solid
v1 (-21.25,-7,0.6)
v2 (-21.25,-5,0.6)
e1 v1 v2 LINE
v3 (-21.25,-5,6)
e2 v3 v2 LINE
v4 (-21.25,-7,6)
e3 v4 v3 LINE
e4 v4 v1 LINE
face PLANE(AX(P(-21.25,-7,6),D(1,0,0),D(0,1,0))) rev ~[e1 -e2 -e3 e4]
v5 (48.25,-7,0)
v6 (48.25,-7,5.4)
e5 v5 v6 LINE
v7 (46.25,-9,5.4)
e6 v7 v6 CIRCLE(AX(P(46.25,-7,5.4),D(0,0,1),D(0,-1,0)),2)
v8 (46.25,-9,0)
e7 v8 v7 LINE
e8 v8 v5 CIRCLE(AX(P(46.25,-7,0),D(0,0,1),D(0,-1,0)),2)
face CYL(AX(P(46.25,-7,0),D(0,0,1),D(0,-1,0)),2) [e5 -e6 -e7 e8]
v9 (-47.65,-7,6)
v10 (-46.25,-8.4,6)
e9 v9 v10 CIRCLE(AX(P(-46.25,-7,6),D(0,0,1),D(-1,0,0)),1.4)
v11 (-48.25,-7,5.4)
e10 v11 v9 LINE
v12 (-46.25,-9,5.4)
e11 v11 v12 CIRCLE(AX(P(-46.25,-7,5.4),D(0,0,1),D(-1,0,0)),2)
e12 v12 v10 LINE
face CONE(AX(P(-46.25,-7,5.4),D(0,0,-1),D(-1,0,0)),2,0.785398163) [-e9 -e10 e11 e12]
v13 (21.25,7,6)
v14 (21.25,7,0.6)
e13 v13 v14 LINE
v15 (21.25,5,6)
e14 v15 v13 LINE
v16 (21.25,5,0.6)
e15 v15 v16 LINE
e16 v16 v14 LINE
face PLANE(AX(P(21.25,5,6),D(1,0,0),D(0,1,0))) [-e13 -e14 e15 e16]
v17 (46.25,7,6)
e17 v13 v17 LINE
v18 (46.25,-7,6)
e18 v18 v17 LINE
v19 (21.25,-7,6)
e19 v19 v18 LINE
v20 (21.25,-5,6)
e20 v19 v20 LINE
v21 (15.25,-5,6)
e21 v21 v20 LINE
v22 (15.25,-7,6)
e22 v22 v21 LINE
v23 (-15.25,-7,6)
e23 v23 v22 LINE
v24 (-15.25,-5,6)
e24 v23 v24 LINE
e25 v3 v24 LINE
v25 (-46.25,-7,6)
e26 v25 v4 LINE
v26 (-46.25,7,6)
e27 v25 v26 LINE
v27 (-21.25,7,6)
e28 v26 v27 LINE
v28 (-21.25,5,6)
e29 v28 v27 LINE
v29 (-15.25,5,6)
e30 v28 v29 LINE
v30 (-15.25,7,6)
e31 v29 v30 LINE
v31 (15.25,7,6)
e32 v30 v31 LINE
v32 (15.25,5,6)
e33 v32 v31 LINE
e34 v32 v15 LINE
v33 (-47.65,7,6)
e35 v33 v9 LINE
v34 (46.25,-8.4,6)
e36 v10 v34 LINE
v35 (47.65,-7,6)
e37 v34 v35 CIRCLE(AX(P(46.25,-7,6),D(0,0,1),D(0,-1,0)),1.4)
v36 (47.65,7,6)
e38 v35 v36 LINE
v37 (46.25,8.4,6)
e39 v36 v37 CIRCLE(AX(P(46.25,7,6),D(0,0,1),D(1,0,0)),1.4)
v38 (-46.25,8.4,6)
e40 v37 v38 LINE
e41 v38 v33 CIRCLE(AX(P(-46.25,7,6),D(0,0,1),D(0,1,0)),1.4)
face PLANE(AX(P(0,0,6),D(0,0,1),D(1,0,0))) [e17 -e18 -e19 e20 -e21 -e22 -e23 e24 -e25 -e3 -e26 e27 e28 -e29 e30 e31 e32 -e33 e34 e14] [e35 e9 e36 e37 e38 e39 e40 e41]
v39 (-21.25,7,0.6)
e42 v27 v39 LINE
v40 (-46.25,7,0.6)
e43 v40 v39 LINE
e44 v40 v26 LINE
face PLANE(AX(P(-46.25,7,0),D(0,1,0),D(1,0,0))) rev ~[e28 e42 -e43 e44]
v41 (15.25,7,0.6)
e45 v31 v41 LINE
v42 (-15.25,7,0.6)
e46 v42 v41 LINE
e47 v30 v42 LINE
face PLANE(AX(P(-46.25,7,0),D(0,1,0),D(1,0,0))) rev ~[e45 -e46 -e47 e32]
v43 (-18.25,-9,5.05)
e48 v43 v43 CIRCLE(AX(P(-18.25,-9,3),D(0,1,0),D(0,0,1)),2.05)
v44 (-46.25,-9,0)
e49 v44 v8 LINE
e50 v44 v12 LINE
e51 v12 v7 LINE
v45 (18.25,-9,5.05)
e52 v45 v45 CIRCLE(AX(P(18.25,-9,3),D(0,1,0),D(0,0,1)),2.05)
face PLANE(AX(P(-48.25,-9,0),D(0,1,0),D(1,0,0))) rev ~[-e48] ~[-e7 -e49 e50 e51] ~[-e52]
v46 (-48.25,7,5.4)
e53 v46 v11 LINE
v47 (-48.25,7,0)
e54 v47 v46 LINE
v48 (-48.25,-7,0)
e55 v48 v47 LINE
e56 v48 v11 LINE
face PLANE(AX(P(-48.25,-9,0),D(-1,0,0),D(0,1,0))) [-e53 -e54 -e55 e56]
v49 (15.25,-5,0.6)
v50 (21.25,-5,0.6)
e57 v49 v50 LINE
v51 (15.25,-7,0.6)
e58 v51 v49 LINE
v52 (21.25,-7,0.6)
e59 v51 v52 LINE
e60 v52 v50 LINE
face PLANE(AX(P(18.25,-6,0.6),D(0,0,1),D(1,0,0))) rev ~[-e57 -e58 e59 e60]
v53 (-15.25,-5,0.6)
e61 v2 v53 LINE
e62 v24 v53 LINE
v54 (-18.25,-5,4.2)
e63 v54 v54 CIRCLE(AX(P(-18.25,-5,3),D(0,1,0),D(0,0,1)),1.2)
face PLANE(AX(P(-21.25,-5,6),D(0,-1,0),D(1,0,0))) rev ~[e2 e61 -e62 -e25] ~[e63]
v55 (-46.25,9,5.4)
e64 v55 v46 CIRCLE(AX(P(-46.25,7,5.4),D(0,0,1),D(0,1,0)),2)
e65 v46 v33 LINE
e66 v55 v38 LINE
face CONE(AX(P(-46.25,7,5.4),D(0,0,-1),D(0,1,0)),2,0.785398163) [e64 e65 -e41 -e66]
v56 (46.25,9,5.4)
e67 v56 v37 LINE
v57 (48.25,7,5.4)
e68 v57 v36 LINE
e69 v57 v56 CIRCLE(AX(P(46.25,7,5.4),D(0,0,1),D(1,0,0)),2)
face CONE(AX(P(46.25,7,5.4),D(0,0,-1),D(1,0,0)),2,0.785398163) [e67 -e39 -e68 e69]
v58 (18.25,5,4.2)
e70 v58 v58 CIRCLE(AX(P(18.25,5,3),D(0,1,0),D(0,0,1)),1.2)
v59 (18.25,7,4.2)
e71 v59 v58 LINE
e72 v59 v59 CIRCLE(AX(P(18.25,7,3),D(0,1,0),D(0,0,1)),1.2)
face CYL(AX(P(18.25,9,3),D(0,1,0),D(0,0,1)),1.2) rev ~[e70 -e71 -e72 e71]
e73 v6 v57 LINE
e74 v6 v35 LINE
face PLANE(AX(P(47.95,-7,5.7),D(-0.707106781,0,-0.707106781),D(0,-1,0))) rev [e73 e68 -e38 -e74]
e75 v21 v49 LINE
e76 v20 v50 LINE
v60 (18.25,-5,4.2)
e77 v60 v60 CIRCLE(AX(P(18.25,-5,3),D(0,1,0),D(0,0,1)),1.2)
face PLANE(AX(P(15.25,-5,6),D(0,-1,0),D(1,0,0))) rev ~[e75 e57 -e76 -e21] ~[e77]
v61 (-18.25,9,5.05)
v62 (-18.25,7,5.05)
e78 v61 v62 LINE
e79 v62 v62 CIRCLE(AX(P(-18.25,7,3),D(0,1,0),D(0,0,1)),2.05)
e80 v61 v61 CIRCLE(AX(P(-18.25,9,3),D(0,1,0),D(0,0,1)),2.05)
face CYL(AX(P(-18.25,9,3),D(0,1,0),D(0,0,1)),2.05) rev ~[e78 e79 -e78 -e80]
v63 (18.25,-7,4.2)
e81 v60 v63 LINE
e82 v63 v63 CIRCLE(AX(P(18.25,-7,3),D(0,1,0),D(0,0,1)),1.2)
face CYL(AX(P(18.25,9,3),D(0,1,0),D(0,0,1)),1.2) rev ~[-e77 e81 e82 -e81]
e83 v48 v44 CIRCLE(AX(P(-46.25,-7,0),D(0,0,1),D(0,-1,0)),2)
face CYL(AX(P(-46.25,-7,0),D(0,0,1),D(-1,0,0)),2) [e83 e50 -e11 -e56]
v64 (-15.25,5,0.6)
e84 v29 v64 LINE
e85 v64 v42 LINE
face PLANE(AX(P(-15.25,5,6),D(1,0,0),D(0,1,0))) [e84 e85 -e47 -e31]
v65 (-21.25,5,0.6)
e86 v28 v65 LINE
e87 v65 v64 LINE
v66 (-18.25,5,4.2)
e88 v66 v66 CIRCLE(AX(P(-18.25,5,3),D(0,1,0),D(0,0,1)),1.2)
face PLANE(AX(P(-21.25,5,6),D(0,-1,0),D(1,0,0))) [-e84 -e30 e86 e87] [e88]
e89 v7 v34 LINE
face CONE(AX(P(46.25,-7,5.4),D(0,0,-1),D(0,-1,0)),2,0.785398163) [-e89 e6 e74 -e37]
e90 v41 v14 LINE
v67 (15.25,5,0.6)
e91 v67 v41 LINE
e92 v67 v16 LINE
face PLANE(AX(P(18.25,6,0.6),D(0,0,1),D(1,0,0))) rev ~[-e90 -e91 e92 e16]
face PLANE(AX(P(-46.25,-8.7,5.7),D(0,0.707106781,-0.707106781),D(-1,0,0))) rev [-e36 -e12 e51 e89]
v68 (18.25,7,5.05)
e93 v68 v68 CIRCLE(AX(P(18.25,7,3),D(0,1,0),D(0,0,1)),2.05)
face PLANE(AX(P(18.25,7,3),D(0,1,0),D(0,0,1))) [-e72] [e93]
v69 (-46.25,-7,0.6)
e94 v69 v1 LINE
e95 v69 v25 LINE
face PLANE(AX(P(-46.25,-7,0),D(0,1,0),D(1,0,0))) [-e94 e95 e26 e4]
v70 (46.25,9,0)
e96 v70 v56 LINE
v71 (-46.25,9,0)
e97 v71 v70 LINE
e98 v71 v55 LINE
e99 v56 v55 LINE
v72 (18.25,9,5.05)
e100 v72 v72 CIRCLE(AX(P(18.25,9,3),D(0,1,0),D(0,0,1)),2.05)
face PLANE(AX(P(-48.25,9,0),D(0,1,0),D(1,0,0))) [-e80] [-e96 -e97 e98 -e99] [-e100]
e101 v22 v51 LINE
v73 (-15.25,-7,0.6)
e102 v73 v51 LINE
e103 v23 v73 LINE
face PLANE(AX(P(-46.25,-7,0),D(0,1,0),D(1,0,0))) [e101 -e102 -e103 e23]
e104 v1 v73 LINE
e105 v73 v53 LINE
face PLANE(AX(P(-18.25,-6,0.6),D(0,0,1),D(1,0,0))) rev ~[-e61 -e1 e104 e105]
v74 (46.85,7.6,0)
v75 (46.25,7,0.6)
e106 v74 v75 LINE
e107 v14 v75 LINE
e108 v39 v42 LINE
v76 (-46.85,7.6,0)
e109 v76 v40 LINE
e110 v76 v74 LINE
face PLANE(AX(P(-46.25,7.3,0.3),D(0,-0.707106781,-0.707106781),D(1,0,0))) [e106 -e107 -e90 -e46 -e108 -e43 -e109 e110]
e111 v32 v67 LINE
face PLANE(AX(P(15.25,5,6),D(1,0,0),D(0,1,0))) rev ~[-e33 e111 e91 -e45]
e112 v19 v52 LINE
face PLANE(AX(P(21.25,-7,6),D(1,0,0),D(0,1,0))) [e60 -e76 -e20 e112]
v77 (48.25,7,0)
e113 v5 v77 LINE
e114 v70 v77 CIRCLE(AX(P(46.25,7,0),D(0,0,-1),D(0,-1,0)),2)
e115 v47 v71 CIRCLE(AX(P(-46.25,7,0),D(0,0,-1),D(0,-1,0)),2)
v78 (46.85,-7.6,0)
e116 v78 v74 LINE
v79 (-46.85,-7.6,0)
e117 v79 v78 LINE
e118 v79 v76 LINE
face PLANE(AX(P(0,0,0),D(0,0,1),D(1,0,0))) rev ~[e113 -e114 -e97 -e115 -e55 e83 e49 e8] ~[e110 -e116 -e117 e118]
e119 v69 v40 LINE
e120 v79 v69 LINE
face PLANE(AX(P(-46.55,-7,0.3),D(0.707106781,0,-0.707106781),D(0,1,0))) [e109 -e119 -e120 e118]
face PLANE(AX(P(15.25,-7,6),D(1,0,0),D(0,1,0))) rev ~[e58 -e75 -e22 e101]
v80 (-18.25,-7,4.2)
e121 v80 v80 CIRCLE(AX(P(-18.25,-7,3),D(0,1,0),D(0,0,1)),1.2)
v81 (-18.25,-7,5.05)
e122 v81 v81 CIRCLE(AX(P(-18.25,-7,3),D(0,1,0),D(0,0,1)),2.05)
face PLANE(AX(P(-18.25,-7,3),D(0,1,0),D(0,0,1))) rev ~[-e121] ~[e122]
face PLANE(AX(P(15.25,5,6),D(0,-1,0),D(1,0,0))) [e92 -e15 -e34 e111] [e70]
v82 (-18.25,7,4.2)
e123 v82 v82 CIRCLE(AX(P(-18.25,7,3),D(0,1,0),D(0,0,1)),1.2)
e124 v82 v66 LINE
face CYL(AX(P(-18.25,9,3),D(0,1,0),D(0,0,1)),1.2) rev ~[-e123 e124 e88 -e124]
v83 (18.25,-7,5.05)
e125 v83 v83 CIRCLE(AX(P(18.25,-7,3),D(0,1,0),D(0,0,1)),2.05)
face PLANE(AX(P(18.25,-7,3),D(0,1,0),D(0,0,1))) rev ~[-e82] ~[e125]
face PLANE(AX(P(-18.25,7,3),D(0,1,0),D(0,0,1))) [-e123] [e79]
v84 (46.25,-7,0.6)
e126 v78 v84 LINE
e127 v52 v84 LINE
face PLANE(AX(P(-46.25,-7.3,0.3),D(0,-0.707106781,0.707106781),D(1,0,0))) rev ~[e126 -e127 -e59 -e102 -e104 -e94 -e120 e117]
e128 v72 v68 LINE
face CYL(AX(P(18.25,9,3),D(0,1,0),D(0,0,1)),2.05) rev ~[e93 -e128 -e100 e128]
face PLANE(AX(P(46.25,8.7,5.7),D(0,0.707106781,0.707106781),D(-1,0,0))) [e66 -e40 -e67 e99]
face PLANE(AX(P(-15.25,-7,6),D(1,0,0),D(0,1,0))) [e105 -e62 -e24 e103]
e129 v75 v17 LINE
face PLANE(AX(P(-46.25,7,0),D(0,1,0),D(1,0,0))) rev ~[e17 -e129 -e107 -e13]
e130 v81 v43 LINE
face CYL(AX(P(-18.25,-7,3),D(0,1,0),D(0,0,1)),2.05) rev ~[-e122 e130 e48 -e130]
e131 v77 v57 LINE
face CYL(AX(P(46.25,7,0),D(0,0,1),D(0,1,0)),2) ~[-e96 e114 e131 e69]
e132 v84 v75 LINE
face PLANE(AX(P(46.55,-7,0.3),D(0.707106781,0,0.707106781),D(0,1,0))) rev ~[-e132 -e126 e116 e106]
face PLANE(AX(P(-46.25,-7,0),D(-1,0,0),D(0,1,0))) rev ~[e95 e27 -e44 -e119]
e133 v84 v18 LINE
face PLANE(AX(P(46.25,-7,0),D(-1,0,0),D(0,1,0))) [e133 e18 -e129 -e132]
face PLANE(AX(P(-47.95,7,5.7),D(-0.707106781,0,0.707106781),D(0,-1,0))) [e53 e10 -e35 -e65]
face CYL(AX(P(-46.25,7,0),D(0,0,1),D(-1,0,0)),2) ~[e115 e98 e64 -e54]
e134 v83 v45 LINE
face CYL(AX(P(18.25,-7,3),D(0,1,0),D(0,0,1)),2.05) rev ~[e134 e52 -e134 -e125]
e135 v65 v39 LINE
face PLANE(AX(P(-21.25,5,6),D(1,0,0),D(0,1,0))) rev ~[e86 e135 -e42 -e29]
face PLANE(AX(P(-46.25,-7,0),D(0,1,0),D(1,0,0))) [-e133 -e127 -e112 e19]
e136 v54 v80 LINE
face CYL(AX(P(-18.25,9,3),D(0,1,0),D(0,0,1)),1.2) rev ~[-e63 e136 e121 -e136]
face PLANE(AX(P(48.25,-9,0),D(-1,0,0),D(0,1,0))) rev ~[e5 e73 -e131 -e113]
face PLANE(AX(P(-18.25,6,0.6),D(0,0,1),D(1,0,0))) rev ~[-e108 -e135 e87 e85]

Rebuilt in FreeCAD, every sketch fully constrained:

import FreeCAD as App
import Part
import Sketcher

V = App.Vector
Q = App.Units.Quantity


def edges_at(feature, points):
    """Names of the edges that pass closest to the given points."""
    edges = feature.Shape.Edges
    near = lambda p: min(range(len(edges)), key=lambda i: edges[i].distToShape(Part.Vertex(*p))[0])
    return sorted({f"Edge{near(p) + 1}" for p in points})

doc = App.newDocument("Part")
body = doc.addObject("PartDesign::Body", "Body")

# Sketch on XY plane
sketch1 = body.newObject("Sketcher::SketchObject", "Sketch")
sketch1.AttachmentSupport = (doc.getObject("XY_Plane"), [""])
sketch1.MapMode = "FlatFace"
sketch1.addGeometry(Part.LineSegment(V(-48, 9, 0), V(-48, -9, 0)), False)
sketch1.addGeometry(Part.LineSegment(V(-48, -9, 0), V(48, -9, 0)), False)
sketch1.addGeometry(Part.LineSegment(V(48, -9, 0), V(48, 9, 0)), False)
sketch1.addGeometry(Part.LineSegment(V(48, 9, 0), V(-48, 9, 0)), False)
sketch1.addGeometry(Part.LineSegment(V(46, -7, 0), V(-46, -7, 0)), False)
sketch1.addGeometry(Part.LineSegment(V(-46, -7, 0), V(-46, 7, 0)), False)
sketch1.addGeometry(Part.LineSegment(V(-46, 7, 0), V(46, 7, 0)), False)
sketch1.addGeometry(Part.LineSegment(V(46, 7, 0), V(46, -7, 0)), False)
sketch1.addConstraint(Sketcher.Constraint("Coincident", 0, 2, 1, 1))
sketch1.addConstraint(Sketcher.Constraint("Coincident", 1, 2, 2, 1))
sketch1.addConstraint(Sketcher.Constraint("Coincident", 2, 2, 3, 1))
sketch1.addConstraint(Sketcher.Constraint("Coincident", 3, 2, 0, 1))
sketch1.addConstraint(Sketcher.Constraint("Coincident", 4, 2, 5, 1))
sketch1.addConstraint(Sketcher.Constraint("Coincident", 5, 2, 6, 1))
sketch1.addConstraint(Sketcher.Constraint("Coincident", 6, 2, 7, 1))
sketch1.addConstraint(Sketcher.Constraint("Coincident", 7, 2, 4, 1))
sketch1.addConstraint(Sketcher.Constraint("Vertical", 0))
sketch1.addConstraint(Sketcher.Constraint("Horizontal", 1))
sketch1.addConstraint(Sketcher.Constraint("Vertical", 2))
sketch1.addConstraint(Sketcher.Constraint("Horizontal", 3))
sketch1.addConstraint(Sketcher.Constraint("Horizontal", 4))
sketch1.addConstraint(Sketcher.Constraint("Vertical", 5))
sketch1.addConstraint(Sketcher.Constraint("Horizontal", 6))
sketch1.addConstraint(Sketcher.Constraint("Vertical", 7))
sketch1.addConstraint(Sketcher.Constraint("Symmetric", 0, 2, 2, 2, -1, 1))
sketch1.addConstraint(Sketcher.Constraint("Symmetric", 4, 2, 6, 2, -1, 1))
sketch1.addConstraint(Sketcher.Constraint("DistanceY", 0, 2, 0, 1, Q("18 mm")))
sketch1.addConstraint(Sketcher.Constraint("DistanceY", 5, 1, 5, 2, Q("14 mm")))
sketch1.addConstraint(Sketcher.Constraint("DistanceX", 1, 1, 1, 2, Q("96.5 mm")))
sketch1.addConstraint(Sketcher.Constraint("DistanceX", 4, 2, 4, 1, Q("92.5 mm")))
pad1 = body.newObject("PartDesign::Pad", "Pad")
pad1.Profile = sketch1
pad1.Length = 6
doc.recompute()

fillet = body.newObject("PartDesign::Fillet", "Fillet")
fillet.Base = (pad1, edges_at(pad1, [
    (48.25, -9, 3),
    (-48.25, -9, 3),
    (-48.25, 9, 3),
    (48.25, 9, 3),
]))
fillet.Radius = 2
doc.recompute()

chamfer = body.newObject("PartDesign::Chamfer", "Chamfer")
chamfer.Base = (fillet, edges_at(fillet, [
    (0, 7, 0),
    (-46.25, 0, 0),
    (0, -7, 0),
    (46.25, 0, 0),
]))
chamfer.Size = 0.6

# Sketch on XY plane
sketch2 = body.newObject("Sketcher::SketchObject", "Sketch001")
sketch2.AttachmentSupport = (doc.getObject("XY_Plane"), [""])
sketch2.MapMode = "FlatFace"
sketch2.AttachmentOffset = App.Placement(V(0, 0, 6), App.Rotation())
sketch2.addGeometry(Part.LineSegment(V(-21.2, 7, 0), V(-21.2, 5, 0)), False)
sketch2.addGeometry(Part.LineSegment(V(-21.2, 5, 0), V(-15.2, 5, 0)), False)
sketch2.addGeometry(Part.LineSegment(V(-15.2, 5, 0), V(-15.2, 7, 0)), False)
sketch2.addGeometry(Part.LineSegment(V(-15.2, 7, 0), V(-21.2, 7, 0)), False)
sketch2.addGeometry(Part.LineSegment(V(-21.2, -5, 0), V(-21.2, -7, 0)), False)
sketch2.addGeometry(Part.LineSegment(V(-21.2, -7, 0), V(-15.2, -7, 0)), False)
sketch2.addGeometry(Part.LineSegment(V(-15.2, -7, 0), V(-15.2, -5, 0)), False)
sketch2.addGeometry(Part.LineSegment(V(-15.2, -5, 0), V(-21.2, -5, 0)), False)
sketch2.addGeometry(Part.LineSegment(V(15.2, 7, 0), V(15.2, 5, 0)), False)
sketch2.addGeometry(Part.LineSegment(V(15.2, 5, 0), V(21.2, 5, 0)), False)
sketch2.addGeometry(Part.LineSegment(V(21.2, 5, 0), V(21.2, 7, 0)), False)
sketch2.addGeometry(Part.LineSegment(V(21.2, 7, 0), V(15.2, 7, 0)), False)
sketch2.addGeometry(Part.LineSegment(V(15.2, -5, 0), V(15.2, -7, 0)), False)
sketch2.addGeometry(Part.LineSegment(V(15.2, -7, 0), V(21.2, -7, 0)), False)
sketch2.addGeometry(Part.LineSegment(V(21.2, -7, 0), V(21.2, -5, 0)), False)
sketch2.addGeometry(Part.LineSegment(V(21.2, -5, 0), V(15.2, -5, 0)), False)
sketch2.addConstraint(Sketcher.Constraint("Coincident", 0, 2, 1, 1))
sketch2.addConstraint(Sketcher.Constraint("Coincident", 1, 2, 2, 1))
sketch2.addConstraint(Sketcher.Constraint("Coincident", 2, 2, 3, 1))
sketch2.addConstraint(Sketcher.Constraint("Coincident", 3, 2, 0, 1))
sketch2.addConstraint(Sketcher.Constraint("Coincident", 4, 2, 5, 1))
sketch2.addConstraint(Sketcher.Constraint("Coincident", 5, 2, 6, 1))
sketch2.addConstraint(Sketcher.Constraint("Coincident", 6, 2, 7, 1))
sketch2.addConstraint(Sketcher.Constraint("Coincident", 7, 2, 4, 1))
sketch2.addConstraint(Sketcher.Constraint("Coincident", 8, 2, 9, 1))
sketch2.addConstraint(Sketcher.Constraint("Coincident", 9, 2, 10, 1))
sketch2.addConstraint(Sketcher.Constraint("Coincident", 10, 2, 11, 1))
sketch2.addConstraint(Sketcher.Constraint("Coincident", 11, 2, 8, 1))
sketch2.addConstraint(Sketcher.Constraint("Coincident", 12, 2, 13, 1))
sketch2.addConstraint(Sketcher.Constraint("Coincident", 13, 2, 14, 1))
sketch2.addConstraint(Sketcher.Constraint("Coincident", 14, 2, 15, 1))
sketch2.addConstraint(Sketcher.Constraint("Coincident", 15, 2, 12, 1))
sketch2.addConstraint(Sketcher.Constraint("Vertical", 0))
sketch2.addConstraint(Sketcher.Constraint("Horizontal", 1))
sketch2.addConstraint(Sketcher.Constraint("Vertical", 2))
sketch2.addConstraint(Sketcher.Constraint("Horizontal", 3))
sketch2.addConstraint(Sketcher.Constraint("Vertical", 4))
sketch2.addConstraint(Sketcher.Constraint("Horizontal", 5))
sketch2.addConstraint(Sketcher.Constraint("Vertical", 6))
sketch2.addConstraint(Sketcher.Constraint("Horizontal", 7))
sketch2.addConstraint(Sketcher.Constraint("Vertical", 8))
sketch2.addConstraint(Sketcher.Constraint("Horizontal", 9))
sketch2.addConstraint(Sketcher.Constraint("Vertical", 10))
sketch2.addConstraint(Sketcher.Constraint("Horizontal", 11))
sketch2.addConstraint(Sketcher.Constraint("Vertical", 12))
sketch2.addConstraint(Sketcher.Constraint("Horizontal", 13))
sketch2.addConstraint(Sketcher.Constraint("Vertical", 14))
sketch2.addConstraint(Sketcher.Constraint("Horizontal", 15))
sketch2.addConstraint(Sketcher.Constraint("Symmetric", 6, 2, 8, 2, -1, 1))
sketch2.addConstraint(Sketcher.Constraint("Symmetric", 4, 2, 10, 2, -1, 1))
sketch2.addConstraint(Sketcher.Constraint("Symmetric", 2, 2, 12, 2, -1, 1))
sketch2.addConstraint(Sketcher.Constraint("Symmetric", 0, 2, 14, 2, -1, 1))
sketch2.addConstraint(Sketcher.Constraint("Symmetric", 1, 2, 8, 2, -2))
sketch2.addConstraint(Sketcher.Constraint("Symmetric", 3, 2, 10, 2, -2))
sketch2.addConstraint(Sketcher.Constraint("DistanceX", 1, 1, 1, 2, Q("6 mm")))
sketch2.addConstraint(Sketcher.Constraint("DistanceY", 0, 2, 0, 1, Q("2 mm")))
sketch2.addConstraint(Sketcher.Constraint("DistanceY", -1, 1, 0, 2, Q("5 mm")))
sketch2.addConstraint(Sketcher.Constraint("DistanceX", 1, 2, 8, 2, Q("30.5 mm")))
pad2 = body.newObject("PartDesign::Pad", "Pad001")
pad2.Profile = sketch2
pad2.Length = 5.4
pad2.Reversed = True

# Sketch on XZ plane
sketch3 = body.newObject("Sketcher::SketchObject", "Sketch002")
sketch3.AttachmentSupport = (doc.getObject("XZ_Plane"), [""])
sketch3.MapMode = "FlatFace"
sketch3.AttachmentOffset = App.Placement(V(0, 0, -9), App.Rotation())
sketch3.addGeometry(Part.Circle(V(-18.2, 3, 0), V(0, 0, 1), 1.2), False)
sketch3.addGeometry(Part.Circle(V(18.2, 3, 0), V(0, 0, 1), 1.2), False)
sketch3.addConstraint(Sketcher.Constraint("Equal", 0, 1))
sketch3.addConstraint(Sketcher.Constraint("Symmetric", 0, 3, 1, 3, -2))
sketch3.addConstraint(Sketcher.Constraint("Diameter", 0, Q("2.4 mm")))
sketch3.addConstraint(Sketcher.Constraint("DistanceY", -1, 1, 0, 3, Q("3 mm")))
sketch3.addConstraint(Sketcher.Constraint("DistanceX", 0, 3, 1, 3, Q("36.5 mm")))
pocket1 = body.newObject("PartDesign::Pocket", "Pocket")
pocket1.Profile = sketch3
pocket1.Type = "ThroughAll"
pocket1.Reversed = True

# Sketch on XZ plane
sketch4 = body.newObject("Sketcher::SketchObject", "Sketch003")
sketch4.AttachmentSupport = (doc.getObject("XZ_Plane"), [""])
sketch4.MapMode = "FlatFace"
sketch4.AttachmentOffset = App.Placement(V(0, 0, -9), App.Rotation())
sketch4.addGeometry(Part.Circle(V(-18.2, 3, 0), V(0, 0, 1), 2), False)
sketch4.addGeometry(Part.Circle(V(18.2, 3, 0), V(0, 0, 1), 2), False)
sketch4.addConstraint(Sketcher.Constraint("Equal", 0, 1))
sketch4.addConstraint(Sketcher.Constraint("Symmetric", 0, 3, 1, 3, -2))
sketch4.addConstraint(Sketcher.Constraint("Diameter", 0, Q("4.1 mm")))
sketch4.addConstraint(Sketcher.Constraint("DistanceY", -1, 1, 0, 3, Q("3 mm")))
sketch4.addConstraint(Sketcher.Constraint("DistanceX", 0, 3, 1, 3, Q("36.5 mm")))
pocket2 = body.newObject("PartDesign::Pocket", "Pocket001")
pocket2.Profile = sketch4
pocket2.Length = 2
pocket2.Reversed = True

# Sketch on XZ plane
sketch5 = body.newObject("Sketcher::SketchObject", "Sketch004")
sketch5.AttachmentSupport = (doc.getObject("XZ_Plane"), [""])
sketch5.MapMode = "FlatFace"
sketch5.AttachmentOffset = App.Placement(V(0, 0, 7), App.Rotation())
sketch5.addGeometry(Part.Circle(V(-18.2, 3, 0), V(0, 0, 1), 2), False)
sketch5.addGeometry(Part.Circle(V(18.2, 3, 0), V(0, 0, 1), 2), False)
sketch5.addConstraint(Sketcher.Constraint("Equal", 0, 1))
sketch5.addConstraint(Sketcher.Constraint("Symmetric", 0, 3, 1, 3, -2))
sketch5.addConstraint(Sketcher.Constraint("Diameter", 0, Q("4.1 mm")))
sketch5.addConstraint(Sketcher.Constraint("DistanceY", -1, 1, 0, 3, Q("3 mm")))
sketch5.addConstraint(Sketcher.Constraint("DistanceX", 0, 3, 1, 3, Q("36.5 mm")))
pocket3 = body.newObject("PartDesign::Pocket", "Pocket002")
pocket3.Profile = sketch5
pocket3.Length = 2
pocket3.Reversed = True
doc.recompute()

chamfer2 = body.newObject("PartDesign::Chamfer", "Chamfer001")
chamfer2.Base = (pocket3, edges_at(pocket3, [
    (0, -9, 6),
    (-48.25, 0, 6),
    (48.25, 0, 6),
    (0, 9, 6),
    (-47.664, 8.414, 6),
    (47.664, 8.414, 6),
    (47.664, -8.414, 6),
    (-47.664, -8.414, 6),
]))
chamfer2.Size = 0.6

doc.recompute()
